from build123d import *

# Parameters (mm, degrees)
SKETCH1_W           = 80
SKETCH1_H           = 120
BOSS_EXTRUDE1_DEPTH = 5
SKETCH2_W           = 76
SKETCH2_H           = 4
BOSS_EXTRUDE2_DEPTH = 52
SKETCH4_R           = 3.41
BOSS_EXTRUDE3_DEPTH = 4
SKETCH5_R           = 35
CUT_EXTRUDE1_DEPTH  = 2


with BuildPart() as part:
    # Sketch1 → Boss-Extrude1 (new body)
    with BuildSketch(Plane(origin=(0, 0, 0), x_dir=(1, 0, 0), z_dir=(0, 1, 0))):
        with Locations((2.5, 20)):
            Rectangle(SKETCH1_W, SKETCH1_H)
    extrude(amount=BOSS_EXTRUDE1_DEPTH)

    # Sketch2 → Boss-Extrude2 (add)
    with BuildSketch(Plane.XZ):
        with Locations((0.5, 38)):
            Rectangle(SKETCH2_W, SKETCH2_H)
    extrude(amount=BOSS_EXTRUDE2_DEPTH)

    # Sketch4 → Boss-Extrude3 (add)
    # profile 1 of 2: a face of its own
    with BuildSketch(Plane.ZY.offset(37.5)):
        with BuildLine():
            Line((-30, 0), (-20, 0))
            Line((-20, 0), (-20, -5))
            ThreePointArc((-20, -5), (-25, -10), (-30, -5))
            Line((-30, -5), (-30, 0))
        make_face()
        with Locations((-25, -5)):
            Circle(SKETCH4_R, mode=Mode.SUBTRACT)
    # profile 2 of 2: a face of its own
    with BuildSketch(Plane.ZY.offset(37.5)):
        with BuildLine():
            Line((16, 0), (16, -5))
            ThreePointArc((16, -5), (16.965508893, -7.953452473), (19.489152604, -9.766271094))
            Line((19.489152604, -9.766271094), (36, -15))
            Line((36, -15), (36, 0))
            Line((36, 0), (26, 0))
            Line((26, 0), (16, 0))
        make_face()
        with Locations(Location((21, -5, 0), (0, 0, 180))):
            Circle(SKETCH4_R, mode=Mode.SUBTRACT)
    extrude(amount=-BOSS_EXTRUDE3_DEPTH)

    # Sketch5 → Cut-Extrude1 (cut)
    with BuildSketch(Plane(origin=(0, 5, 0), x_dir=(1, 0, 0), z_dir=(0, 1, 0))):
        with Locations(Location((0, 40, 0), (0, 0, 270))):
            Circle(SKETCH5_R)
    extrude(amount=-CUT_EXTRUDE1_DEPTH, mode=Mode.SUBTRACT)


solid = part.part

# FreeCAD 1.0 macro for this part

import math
import FreeCAD as App
import Part
import Sketcher


def add_polygon(sketch, points):
    """Adds a closed chain of lines whose ends are joined by coincident constraints."""
    first, n = sketch.GeometryCount, len(points)
    for a, b in zip(points, points[1:] + points[:1]):
        sketch.addGeometry(Part.LineSegment(App.Vector(*a, 0), App.Vector(*b, 0)), False)
    for i in range(n):
        sketch.addConstraint(Sketcher.Constraint("Coincident", first + i, 2, first + (i + 1) % n, 1))

doc = App.newDocument("Part")
body = doc.addObject("PartDesign::Body", "Body")

# Sketch on XZ plane
sketch1 = doc.addObject("Sketcher::SketchObject", "Sketch")
body.addObject(sketch1)
sketch1.AttachmentSupport = (doc.XZ_Plane, [""])
sketch1.MapMode = "FlatFace"
add_polygon(sketch1, [(-37.5, -80), (-37.5, 40), (42.5, 40), (42.5, -80)])  # lines 0-3
sketch1.addConstraint([
    Sketcher.Constraint("Vertical", 0),
    Sketcher.Constraint("Horizontal", 1),
    Sketcher.Constraint("Vertical", 2),
    Sketcher.Constraint("Horizontal", 3),
    Sketcher.Constraint("DistanceX", 1, 1, 1, 2, 80.0),
    Sketcher.Constraint("DistanceY", 0, 1, 0, 2, 120.0),
    Sketcher.Constraint("DistanceY", -1, 1, 0, 2, 40.0),
    Sketcher.Constraint("DistanceX", 0, 2, -1, 1, 37.5),
])
pad1 = doc.addObject("PartDesign::Pad", "Pad")
body.addObject(pad1)
pad1.Profile = sketch1
pad1.Length = 5
pad1.Reversed = True

# Sketch on XZ plane
sketch2 = doc.addObject("Sketcher::SketchObject", "Sketch001")
body.addObject(sketch2)
sketch2.AttachmentSupport = (doc.XZ_Plane, [""])
sketch2.MapMode = "FlatFace"
add_polygon(sketch2, [(-37.5, 40), (-37.5, 36), (38.5, 36), (38.5, 40)])  # lines 0-3
sketch2.addConstraint([
    Sketcher.Constraint("Vertical", 0),
    Sketcher.Constraint("Horizontal", 1),
    Sketcher.Constraint("Vertical", 2),
    Sketcher.Constraint("Horizontal", 3),
    Sketcher.Constraint("DistanceX", 1, 1, 1, 2, 76.0),
    Sketcher.Constraint("DistanceY", 0, 2, 0, 1, 4.0),
    Sketcher.Constraint("DistanceY", -1, 1, 0, 2, 36.0),
    Sketcher.Constraint("DistanceX", 0, 2, -1, 1, 37.5),
])
pad2 = doc.addObject("PartDesign::Pad", "Pad001")
body.addObject(pad2)
pad2.Profile = sketch2
pad2.Length = 52

# Sketch on YZ plane
sketch3 = doc.addObject("Sketcher::SketchObject", "Sketch002")
body.addObject(sketch3)
sketch3.AttachmentSupport = (doc.YZ_Plane, [""])
sketch3.MapMode = "FlatFace"
sketch3.AttachmentOffset = App.Placement(App.Vector(0, 0, -37.5), App.Rotation())
sketch3.addGeometry([
    Part.LineSegment(App.Vector(0, -20, 0), App.Vector(0, -30, 0)),  # 0
    Part.LineSegment(App.Vector(0, -30, 0), App.Vector(-5, -30, 0)),  # 1
    Part.ArcOfCircle(Part.Circle(App.Vector(-5, -25, 0), App.Vector(0, 0, 1), 5), math.radians(90), math.radians(270)),  # 2
    Part.LineSegment(App.Vector(-5, -20, 0), App.Vector(0, -20, 0)),  # 3
    Part.Circle(App.Vector(-5, -25, 0), App.Vector(0, 0, 1), 3.41),  # 4
    Part.LineSegment(App.Vector(0, 16, 0), App.Vector(-5, 16, 0)),  # 5
    Part.ArcOfCircle(Part.Circle(App.Vector(-5, 21, 0), App.Vector(0, 0, 1), 5), math.radians(-162.412046), math.radians(-90)),  # 6
    Part.LineSegment(App.Vector(-9.766271, 19.489153, 0), App.Vector(-15, 36, 0)),  # 7
    Part.LineSegment(App.Vector(-15, 36, 0), App.Vector(0, 36, 0)),  # 8
    Part.LineSegment(App.Vector(0, 36, 0), App.Vector(0, 16, 0)),  # 9
    Part.Circle(App.Vector(-5, 21, 0), App.Vector(0, 0, 1), 3.41),  # 10
], False)
sketch3.addConstraint([
    Sketcher.Constraint("Coincident", 0, 2, 1, 1),
    Sketcher.Constraint("Tangent", 1, 2, 2, 2),
    Sketcher.Constraint("Tangent", 2, 1, 3, 1),
    Sketcher.Constraint("Coincident", 3, 2, 0, 1),
    Sketcher.Constraint("Tangent", 5, 2, 6, 2),
    Sketcher.Constraint("Tangent", 6, 1, 7, 1),
    Sketcher.Constraint("Coincident", 7, 2, 8, 1),
    Sketcher.Constraint("Coincident", 8, 2, 9, 1),
    Sketcher.Constraint("Coincident", 9, 2, 5, 1),
    Sketcher.Constraint("Vertical", 0),
    Sketcher.Constraint("Horizontal", 1),
    Sketcher.Constraint("Horizontal", 3),
    Sketcher.Constraint("Horizontal", 5),
    Sketcher.Constraint("Horizontal", 8),
    Sketcher.Constraint("Vertical", 9),
    Sketcher.Constraint("Coincident", 4, 3, 2, 3),
    Sketcher.Constraint("Coincident", 10, 3, 6, 3),
    Sketcher.Constraint("Equal", 2, 6),
    Sketcher.Constraint("Equal", 4, 10),
    Sketcher.Constraint("PointOnObject", 0, 2, -2),
    Sketcher.Constraint("PointOnObject", 8, 2, -2),
    Sketcher.Constraint("Vertical", 4, 3, 6, 3),
    Sketcher.Constraint("Radius", 2, 5.0),
    Sketcher.Constraint("Diameter", 4, 6.82),
    Sketcher.Constraint("DistanceX", 1, 2, 1, 1, 5.0),
    Sketcher.Constraint("DistanceX", 8, 1, 8, 2, 15.0),
    Sketcher.Constraint("DistanceY", 9, 2, 9, 1, 20.0),
    Sketcher.Constraint("DistanceY", 2, 3, -1, 1, 25.0),
    Sketcher.Constraint("DistanceY", -1, 1, 6, 3, 21.0),
])
pad3 = doc.addObject("PartDesign::Pad", "Pad002")
body.addObject(pad3)
pad3.Profile = sketch3
pad3.Length = 4

# Sketch on XZ plane
sketch4 = doc.addObject("Sketcher::SketchObject", "Sketch003")
body.addObject(sketch4)
sketch4.AttachmentSupport = (doc.XZ_Plane, [""])
sketch4.MapMode = "FlatFace"
sketch4.AttachmentOffset = App.Placement(App.Vector(0, 0, -5), App.Rotation())
sketch4.addGeometry(Part.Circle(App.Vector(0, -40, 0), App.Vector(0, 0, 1), 35), False)
sketch4.addConstraint([
    Sketcher.Constraint("PointOnObject", 0, 3, -2),
    Sketcher.Constraint("Diameter", 0, 70.0),
    Sketcher.Constraint("DistanceY", 0, 3, -1, 1, 40.0),
])
pocket1 = doc.addObject("PartDesign::Pocket", "Pocket")
body.addObject(pocket1)
pocket1.Profile = sketch4
pocket1.Length = 2
pocket1.Reversed = True

doc.recompute()
